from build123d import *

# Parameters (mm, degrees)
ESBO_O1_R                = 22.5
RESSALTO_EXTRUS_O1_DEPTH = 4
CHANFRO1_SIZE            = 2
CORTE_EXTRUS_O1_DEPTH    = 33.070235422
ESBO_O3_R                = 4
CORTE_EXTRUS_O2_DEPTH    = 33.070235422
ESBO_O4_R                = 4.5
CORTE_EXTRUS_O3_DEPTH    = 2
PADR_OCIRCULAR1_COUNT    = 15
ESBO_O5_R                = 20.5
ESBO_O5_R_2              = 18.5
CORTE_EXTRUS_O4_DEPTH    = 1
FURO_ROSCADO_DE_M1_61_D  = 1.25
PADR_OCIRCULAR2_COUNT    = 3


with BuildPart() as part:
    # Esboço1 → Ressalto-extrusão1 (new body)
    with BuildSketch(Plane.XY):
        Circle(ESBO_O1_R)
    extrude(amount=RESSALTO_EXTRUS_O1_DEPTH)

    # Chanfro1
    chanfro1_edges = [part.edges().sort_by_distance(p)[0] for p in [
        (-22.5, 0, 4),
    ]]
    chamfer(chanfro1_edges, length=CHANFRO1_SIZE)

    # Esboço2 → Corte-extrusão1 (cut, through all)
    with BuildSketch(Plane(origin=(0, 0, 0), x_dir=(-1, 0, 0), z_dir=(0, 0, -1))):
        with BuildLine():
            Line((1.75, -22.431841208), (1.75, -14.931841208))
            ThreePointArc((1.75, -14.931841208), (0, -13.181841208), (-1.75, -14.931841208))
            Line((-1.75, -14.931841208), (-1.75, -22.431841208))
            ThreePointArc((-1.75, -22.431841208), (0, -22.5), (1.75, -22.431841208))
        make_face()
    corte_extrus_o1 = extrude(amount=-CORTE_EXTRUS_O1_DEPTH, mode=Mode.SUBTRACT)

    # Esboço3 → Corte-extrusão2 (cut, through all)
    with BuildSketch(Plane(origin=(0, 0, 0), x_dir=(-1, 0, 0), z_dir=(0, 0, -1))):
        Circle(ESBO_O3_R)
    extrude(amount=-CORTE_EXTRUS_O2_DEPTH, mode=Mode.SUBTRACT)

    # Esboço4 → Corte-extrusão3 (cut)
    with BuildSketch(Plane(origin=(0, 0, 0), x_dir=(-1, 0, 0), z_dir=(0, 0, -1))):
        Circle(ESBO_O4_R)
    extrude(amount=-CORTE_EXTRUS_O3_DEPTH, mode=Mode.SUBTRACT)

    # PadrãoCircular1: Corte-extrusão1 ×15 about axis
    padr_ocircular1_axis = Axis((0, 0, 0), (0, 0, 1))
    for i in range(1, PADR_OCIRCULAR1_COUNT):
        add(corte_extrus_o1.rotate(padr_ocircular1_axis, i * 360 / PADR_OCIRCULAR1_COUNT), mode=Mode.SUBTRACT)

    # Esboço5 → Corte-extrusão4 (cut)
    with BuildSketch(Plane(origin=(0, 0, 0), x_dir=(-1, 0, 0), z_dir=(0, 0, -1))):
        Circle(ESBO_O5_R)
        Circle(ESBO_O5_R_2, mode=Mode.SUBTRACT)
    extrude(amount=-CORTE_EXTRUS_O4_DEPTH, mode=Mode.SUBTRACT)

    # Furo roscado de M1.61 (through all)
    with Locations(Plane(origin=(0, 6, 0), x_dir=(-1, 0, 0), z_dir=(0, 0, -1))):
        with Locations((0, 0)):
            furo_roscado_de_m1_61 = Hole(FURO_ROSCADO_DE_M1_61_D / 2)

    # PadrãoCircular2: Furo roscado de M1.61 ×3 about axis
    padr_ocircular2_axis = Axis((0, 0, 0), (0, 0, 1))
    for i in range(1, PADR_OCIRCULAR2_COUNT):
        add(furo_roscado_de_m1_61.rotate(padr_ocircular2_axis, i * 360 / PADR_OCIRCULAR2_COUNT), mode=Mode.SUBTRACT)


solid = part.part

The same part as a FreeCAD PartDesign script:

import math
import FreeCAD as App
import Part
import Sketcher

V = App.Vector
Q = App.Units.Quantity


def edges_at(feature, points):
    """Names of the edges that pass closest to the given points."""
    edges = feature.Shape.Edges
    near = lambda p: min(range(len(edges)), key=lambda i: edges[i].distToShape(Part.Vertex(*p))[0])
    return sorted({f"Edge{near(p) + 1}" for p in points})

doc = App.newDocument("Part")
body = doc.addObject("PartDesign::Body", "Body")

# Sketch on XY plane
sketch1 = doc.addObject("Sketcher::SketchObject", "Sketch")
body.addObject(sketch1)
sketch1.AttachmentSupport = (doc.XY_Plane, [""])
sketch1.MapMode = "FlatFace"
sketch1.addGeometry(Part.Circle(V(0, 0, 0), V(0, 0, 1), 22), False)
sketch1.addConstraint([
    Sketcher.Constraint("Coincident", 0, 3, -1, 1),
    Sketcher.Constraint("Diameter", 0, Q("45 mm")),
])
pad1 = doc.addObject("PartDesign::Pad", "Pad")
body.addObject(pad1)
pad1.Profile = sketch1
pad1.Length = 4
doc.recompute()

chamfer = doc.addObject("PartDesign::Chamfer", "Chamfer")
body.addObject(chamfer)
chamfer.Base = (pad1, edges_at(pad1, [(-22.5, 0, 4)]))
chamfer.Size = 2

# Sketch on XY plane
sketch2 = doc.addObject("Sketcher::SketchObject", "Sketch001")
body.addObject(sketch2)
sketch2.AttachmentSupport = (doc.XY_Plane, [""])
sketch2.MapMode = "FlatFace"
sketch2.addGeometry([
    Part.LineSegment(V(-1.8, -22.4, 0), V(-1.8, -14.9, 0)),
    Part.ArcOfCircle(Part.Circle(V(0, -14.9, 0), V(0, 0, 1), 1.8), math.radians(0), math.radians(180)),
    Part.LineSegment(V(1.8, -14.9, 0), V(1.8, -22.4, 0)),
    Part.ArcOfCircle(Part.Circle(V(0, 0, 0), V(0, 0, 1), 22.5), math.radians(-94.46), math.radians(-85.54)),
], False)
sketch2.addConstraint([
    Sketcher.Constraint("Tangent", 0, 2, 1, 2),
    Sketcher.Constraint("Tangent", 1, 1, 2, 1),
    Sketcher.Constraint("Coincident", 2, 2, 3, 2),
    Sketcher.Constraint("Coincident", 3, 1, 0, 1),
    Sketcher.Constraint("Vertical", 0),
    Sketcher.Constraint("Vertical", 2),
    Sketcher.Constraint("Coincident", 3, 3, -1, 1),
    Sketcher.Constraint("PointOnObject", 1, 3, -2),
    Sketcher.Constraint("Radius", 3, Q("22.5 mm")),
    Sketcher.Constraint("Radius", 1, Q("1.75 mm")),
    Sketcher.Constraint("DistanceY", 0, 1, 0, 2, Q("7.5 mm")),
])
pocket1 = doc.addObject("PartDesign::Pocket", "Pocket")
body.addObject(pocket1)
pocket1.Profile = sketch2
pocket1.Type = "ThroughAll"
pocket1.Reversed = True

# Sketch on XY plane
sketch3 = doc.addObject("Sketcher::SketchObject", "Sketch002")
body.addObject(sketch3)
sketch3.AttachmentSupport = (doc.XY_Plane, [""])
sketch3.MapMode = "FlatFace"
sketch3.addGeometry(Part.Circle(V(0, 0, 0), V(0, 0, 1), 4), False)
sketch3.addConstraint([
    Sketcher.Constraint("Coincident", 0, 3, -1, 1),
    Sketcher.Constraint("Diameter", 0, Q("8 mm")),
])
pocket2 = doc.addObject("PartDesign::Pocket", "Pocket001")
body.addObject(pocket2)
pocket2.Profile = sketch3
pocket2.Type = "ThroughAll"
pocket2.Reversed = True

# Sketch on XY plane
sketch4 = doc.addObject("Sketcher::SketchObject", "Sketch003")
body.addObject(sketch4)
sketch4.AttachmentSupport = (doc.XY_Plane, [""])
sketch4.MapMode = "FlatFace"
sketch4.addGeometry(Part.Circle(V(0, 0, 0), V(0, 0, 1), 4.5), False)
sketch4.addConstraint([
    Sketcher.Constraint("Coincident", 0, 3, -1, 1),
    Sketcher.Constraint("Diameter", 0, Q("9 mm")),
])
pocket3 = doc.addObject("PartDesign::Pocket", "Pocket002")
body.addObject(pocket3)
pocket3.Profile = sketch4
pocket3.Length = 2
pocket3.Reversed = True
doc.recompute()

polarpattern = doc.addObject("PartDesign::PolarPattern", "PolarPattern")
body.addObject(polarpattern)
polarpattern.Originals = [pocket1]
polarpattern.Axis = (doc.Z_Axis, [""])
polarpattern.Angle = 360
polarpattern.Occurrences = 15
body.Tip = polarpattern

# Sketch on XY plane
sketch5 = doc.addObject("Sketcher::SketchObject", "Sketch004")
body.addObject(sketch5)
sketch5.AttachmentSupport = (doc.XY_Plane, [""])
sketch5.MapMode = "FlatFace"
sketch5.addGeometry([
    Part.Circle(V(0, 0, 0), V(0, 0, 1), 20),
    Part.Circle(V(0, 0, 0), V(0, 0, 1), 18),
], False)
sketch5.addConstraint([
    Sketcher.Constraint("Coincident", 0, 3, -1, 1),
    Sketcher.Constraint("Coincident", 1, 3, -1, 1),
    Sketcher.Constraint("Diameter", 0, Q("41 mm")),
    Sketcher.Constraint("Diameter", 1, Q("37 mm")),
])
pocket4 = doc.addObject("PartDesign::Pocket", "Pocket003")
body.addObject(pocket4)
pocket4.Profile = sketch5
pocket4.Length = 1
pocket4.Reversed = True

# Sketch on XY plane
sketch6 = doc.addObject("Sketcher::SketchObject", "Sketch005")
body.addObject(sketch6)
sketch6.AttachmentSupport = (doc.XY_Plane, [""])
sketch6.MapMode = "FlatFace"
sketch6.addGeometry(Part.Circle(V(0, 6, 0), V(0, 0, 1), 0.6), False)
sketch6.addConstraint([
    Sketcher.Constraint("PointOnObject", 0, 3, -2),
    Sketcher.Constraint("Diameter", 0, Q("1.25 mm")),
    Sketcher.Constraint("DistanceY", -1, 1, 0, 3, Q("6 mm")),
])
doc.recompute()
hole = doc.addObject("PartDesign::Hole", "Hole")
body.addObject(hole)
hole.Profile = sketch6
hole.ThreadType = "None"
hole.Diameter = 1.25
hole.DepthType = "ThroughAll"
hole.Reversed = True
doc.recompute()

polarpattern2 = doc.addObject("PartDesign::PolarPattern", "PolarPattern001")
body.addObject(polarpattern2)
polarpattern2.Originals = [hole]
polarpattern2.Axis = (doc.Z_Axis, [""])
polarpattern2.Angle = 360
polarpattern2.Occurrences = 3
body.Tip = polarpattern2

doc.recompute()
